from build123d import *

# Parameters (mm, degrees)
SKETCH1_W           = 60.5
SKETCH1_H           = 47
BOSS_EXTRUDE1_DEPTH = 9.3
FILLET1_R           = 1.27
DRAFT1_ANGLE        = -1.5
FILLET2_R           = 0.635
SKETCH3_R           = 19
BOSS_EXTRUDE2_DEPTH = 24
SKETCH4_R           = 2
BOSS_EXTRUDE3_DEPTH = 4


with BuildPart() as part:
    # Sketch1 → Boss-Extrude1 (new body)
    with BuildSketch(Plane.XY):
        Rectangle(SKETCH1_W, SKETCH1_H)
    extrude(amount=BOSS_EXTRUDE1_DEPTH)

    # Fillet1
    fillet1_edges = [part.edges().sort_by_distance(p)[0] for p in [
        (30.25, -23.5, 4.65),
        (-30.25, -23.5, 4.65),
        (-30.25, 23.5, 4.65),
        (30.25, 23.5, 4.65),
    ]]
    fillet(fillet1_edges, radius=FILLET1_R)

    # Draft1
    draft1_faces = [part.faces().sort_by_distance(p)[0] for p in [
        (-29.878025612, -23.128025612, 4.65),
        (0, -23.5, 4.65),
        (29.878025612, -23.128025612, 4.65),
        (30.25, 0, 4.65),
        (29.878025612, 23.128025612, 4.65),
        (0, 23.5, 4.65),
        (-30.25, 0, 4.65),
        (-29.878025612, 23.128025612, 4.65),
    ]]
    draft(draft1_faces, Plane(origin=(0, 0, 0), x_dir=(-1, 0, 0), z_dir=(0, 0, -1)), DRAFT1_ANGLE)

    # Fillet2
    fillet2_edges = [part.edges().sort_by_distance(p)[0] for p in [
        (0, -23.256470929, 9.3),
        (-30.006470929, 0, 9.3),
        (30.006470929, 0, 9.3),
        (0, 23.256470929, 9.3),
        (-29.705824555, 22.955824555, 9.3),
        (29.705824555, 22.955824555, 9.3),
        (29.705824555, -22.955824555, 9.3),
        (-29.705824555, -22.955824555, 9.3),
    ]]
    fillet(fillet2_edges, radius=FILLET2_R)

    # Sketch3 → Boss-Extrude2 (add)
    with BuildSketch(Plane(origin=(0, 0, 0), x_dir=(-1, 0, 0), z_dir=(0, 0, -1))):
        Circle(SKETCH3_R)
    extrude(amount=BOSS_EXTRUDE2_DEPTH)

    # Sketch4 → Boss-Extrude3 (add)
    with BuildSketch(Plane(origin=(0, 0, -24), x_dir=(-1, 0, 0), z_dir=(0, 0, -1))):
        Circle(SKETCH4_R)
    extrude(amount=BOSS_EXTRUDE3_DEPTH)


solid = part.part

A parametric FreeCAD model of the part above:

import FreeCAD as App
import Part
import Sketcher

V = App.Vector


def edges_at(feature, points):
    """Names of the edges that pass closest to the given points."""
    edges = feature.Shape.Edges
    near = lambda p: min(range(len(edges)), key=lambda i: edges[i].distToShape(Part.Vertex(*p))[0])
    return sorted({f"Edge{near(p) + 1}" for p in points})


def faces_at(feature, points):
    """Names of the faces that lie closest to the given points."""
    faces = feature.Shape.Faces
    near = lambda p: min(range(len(faces)), key=lambda i: faces[i].distToShape(Part.Vertex(*p))[0])
    return sorted({f"Face{near(p) + 1}" for p in points})


def add_polygon(sketch, points):
    """Adds a closed chain of lines whose ends are joined by coincident constraints."""
    first, n = sketch.GeometryCount, len(points)
    for a, b in zip(points, points[1:] + points[:1]):
        sketch.addGeometry(Part.LineSegment(App.Vector(*a, 0), App.Vector(*b, 0)), False)
    for i in range(n):
        sketch.addConstraint(Sketcher.Constraint("Coincident", first + i, 2, first + (i + 1) % n, 1))

doc = App.newDocument("Part")
body = doc.addObject("PartDesign::Body", "Body")

# Sketch on XY plane
sketch1 = doc.addObject("Sketcher::SketchObject", "Sketch")
body.addObject(sketch1)
sketch1.AttachmentSupport = (doc.XY_Plane, [""])
sketch1.MapMode = "FlatFace"
add_polygon(sketch1, [(-30.25, 23.5), (-30.25, -23.5), (30.25, -23.5), (30.25, 23.5)])  # lines 0-3
sketch1.addConstraint([
    Sketcher.Constraint("Vertical", 0),
    Sketcher.Constraint("Horizontal", 1),
    Sketcher.Constraint("Vertical", 2),
    Sketcher.Constraint("Horizontal", 3),
    Sketcher.Constraint("Symmetric", 0, 2, 2, 2, -1, 1),
    Sketcher.Constraint("DistanceY", 0, 2, 0, 1, 47.0),
    Sketcher.Constraint("DistanceX", 1, 1, 1, 2, 60.5),
])
pad1 = doc.addObject("PartDesign::Pad", "Pad")
body.addObject(pad1)
pad1.Profile = sketch1
pad1.Length = 9.3
doc.recompute()

fillet = doc.addObject("PartDesign::Fillet", "Fillet")
body.addObject(fillet)
fillet.Base = (pad1, edges_at(pad1, [
    (30.25, -23.5, 4.65),
    (-30.25, -23.5, 4.65),
    (-30.25, 23.5, 4.65),
    (30.25, 23.5, 4.65),
]))
fillet.Radius = 1.27
doc.recompute()

draft = doc.addObject("PartDesign::Draft", "Draft")
body.addObject(draft)
draft.Base = (fillet, faces_at(fillet, [
    (-29.878, -23.128, 4.65),
    (0, -23.5, 4.65),
    (29.878, -23.128, 4.65),
    (30.25, 0, 4.65),
    (29.878, 23.128, 4.65),
    (0, 23.5, 4.65),
    (-30.25, 0, 4.65),
    (-29.878, 23.128, 4.65),
]))
draft.NeutralPlane = (doc.XY_Plane, [""])
draft.Angle = 1.5
draft.Reversed = False
doc.recompute()

fillet2 = doc.addObject("PartDesign::Fillet", "Fillet001")
body.addObject(fillet2)
fillet2.Base = (draft, edges_at(draft, [
    (0, -23.256, 9.3),
    (-30.006, 0, 9.3),
    (30.006, 0, 9.3),
    (0, 23.256, 9.3),
    (-29.706, 22.956, 9.3),
    (29.706, 22.956, 9.3),
    (29.706, -22.956, 9.3),
    (-29.706, -22.956, 9.3),
]))
fillet2.Radius = 0.635

# Sketch on XY plane
sketch2 = doc.addObject("Sketcher::SketchObject", "Sketch001")
body.addObject(sketch2)
sketch2.AttachmentSupport = (doc.XY_Plane, [""])
sketch2.MapMode = "FlatFace"
sketch2.addGeometry(Part.Circle(V(0, 0, 0), V(0, 0, 1), 19), False)
sketch2.addConstraint([
    Sketcher.Constraint("Coincident", 0, 3, -1, 1),
    Sketcher.Constraint("Diameter", 0, 38.0),
])
pad2 = doc.addObject("PartDesign::Pad", "Pad001")
body.addObject(pad2)
pad2.Profile = sketch2
pad2.Length = 24
pad2.Reversed = True

# Sketch on XY plane
sketch3 = doc.addObject("Sketcher::SketchObject", "Sketch002")
body.addObject(sketch3)
sketch3.AttachmentSupport = (doc.XY_Plane, [""])
sketch3.MapMode = "FlatFace"
sketch3.AttachmentOffset = App.Placement(V(0, 0, -24), App.Rotation())
sketch3.addGeometry(Part.Circle(V(0, 0, 0), V(0, 0, 1), 2), False)
sketch3.addConstraint([
    Sketcher.Constraint("Coincident", 0, 3, -1, 1),
    Sketcher.Constraint("Diameter", 0, 4.0),
])
pad3 = doc.addObject("PartDesign::Pad", "Pad002")
body.addObject(pad3)
pad3.Profile = sketch3
pad3.Length = 4
pad3.Reversed = True

doc.recompute()
